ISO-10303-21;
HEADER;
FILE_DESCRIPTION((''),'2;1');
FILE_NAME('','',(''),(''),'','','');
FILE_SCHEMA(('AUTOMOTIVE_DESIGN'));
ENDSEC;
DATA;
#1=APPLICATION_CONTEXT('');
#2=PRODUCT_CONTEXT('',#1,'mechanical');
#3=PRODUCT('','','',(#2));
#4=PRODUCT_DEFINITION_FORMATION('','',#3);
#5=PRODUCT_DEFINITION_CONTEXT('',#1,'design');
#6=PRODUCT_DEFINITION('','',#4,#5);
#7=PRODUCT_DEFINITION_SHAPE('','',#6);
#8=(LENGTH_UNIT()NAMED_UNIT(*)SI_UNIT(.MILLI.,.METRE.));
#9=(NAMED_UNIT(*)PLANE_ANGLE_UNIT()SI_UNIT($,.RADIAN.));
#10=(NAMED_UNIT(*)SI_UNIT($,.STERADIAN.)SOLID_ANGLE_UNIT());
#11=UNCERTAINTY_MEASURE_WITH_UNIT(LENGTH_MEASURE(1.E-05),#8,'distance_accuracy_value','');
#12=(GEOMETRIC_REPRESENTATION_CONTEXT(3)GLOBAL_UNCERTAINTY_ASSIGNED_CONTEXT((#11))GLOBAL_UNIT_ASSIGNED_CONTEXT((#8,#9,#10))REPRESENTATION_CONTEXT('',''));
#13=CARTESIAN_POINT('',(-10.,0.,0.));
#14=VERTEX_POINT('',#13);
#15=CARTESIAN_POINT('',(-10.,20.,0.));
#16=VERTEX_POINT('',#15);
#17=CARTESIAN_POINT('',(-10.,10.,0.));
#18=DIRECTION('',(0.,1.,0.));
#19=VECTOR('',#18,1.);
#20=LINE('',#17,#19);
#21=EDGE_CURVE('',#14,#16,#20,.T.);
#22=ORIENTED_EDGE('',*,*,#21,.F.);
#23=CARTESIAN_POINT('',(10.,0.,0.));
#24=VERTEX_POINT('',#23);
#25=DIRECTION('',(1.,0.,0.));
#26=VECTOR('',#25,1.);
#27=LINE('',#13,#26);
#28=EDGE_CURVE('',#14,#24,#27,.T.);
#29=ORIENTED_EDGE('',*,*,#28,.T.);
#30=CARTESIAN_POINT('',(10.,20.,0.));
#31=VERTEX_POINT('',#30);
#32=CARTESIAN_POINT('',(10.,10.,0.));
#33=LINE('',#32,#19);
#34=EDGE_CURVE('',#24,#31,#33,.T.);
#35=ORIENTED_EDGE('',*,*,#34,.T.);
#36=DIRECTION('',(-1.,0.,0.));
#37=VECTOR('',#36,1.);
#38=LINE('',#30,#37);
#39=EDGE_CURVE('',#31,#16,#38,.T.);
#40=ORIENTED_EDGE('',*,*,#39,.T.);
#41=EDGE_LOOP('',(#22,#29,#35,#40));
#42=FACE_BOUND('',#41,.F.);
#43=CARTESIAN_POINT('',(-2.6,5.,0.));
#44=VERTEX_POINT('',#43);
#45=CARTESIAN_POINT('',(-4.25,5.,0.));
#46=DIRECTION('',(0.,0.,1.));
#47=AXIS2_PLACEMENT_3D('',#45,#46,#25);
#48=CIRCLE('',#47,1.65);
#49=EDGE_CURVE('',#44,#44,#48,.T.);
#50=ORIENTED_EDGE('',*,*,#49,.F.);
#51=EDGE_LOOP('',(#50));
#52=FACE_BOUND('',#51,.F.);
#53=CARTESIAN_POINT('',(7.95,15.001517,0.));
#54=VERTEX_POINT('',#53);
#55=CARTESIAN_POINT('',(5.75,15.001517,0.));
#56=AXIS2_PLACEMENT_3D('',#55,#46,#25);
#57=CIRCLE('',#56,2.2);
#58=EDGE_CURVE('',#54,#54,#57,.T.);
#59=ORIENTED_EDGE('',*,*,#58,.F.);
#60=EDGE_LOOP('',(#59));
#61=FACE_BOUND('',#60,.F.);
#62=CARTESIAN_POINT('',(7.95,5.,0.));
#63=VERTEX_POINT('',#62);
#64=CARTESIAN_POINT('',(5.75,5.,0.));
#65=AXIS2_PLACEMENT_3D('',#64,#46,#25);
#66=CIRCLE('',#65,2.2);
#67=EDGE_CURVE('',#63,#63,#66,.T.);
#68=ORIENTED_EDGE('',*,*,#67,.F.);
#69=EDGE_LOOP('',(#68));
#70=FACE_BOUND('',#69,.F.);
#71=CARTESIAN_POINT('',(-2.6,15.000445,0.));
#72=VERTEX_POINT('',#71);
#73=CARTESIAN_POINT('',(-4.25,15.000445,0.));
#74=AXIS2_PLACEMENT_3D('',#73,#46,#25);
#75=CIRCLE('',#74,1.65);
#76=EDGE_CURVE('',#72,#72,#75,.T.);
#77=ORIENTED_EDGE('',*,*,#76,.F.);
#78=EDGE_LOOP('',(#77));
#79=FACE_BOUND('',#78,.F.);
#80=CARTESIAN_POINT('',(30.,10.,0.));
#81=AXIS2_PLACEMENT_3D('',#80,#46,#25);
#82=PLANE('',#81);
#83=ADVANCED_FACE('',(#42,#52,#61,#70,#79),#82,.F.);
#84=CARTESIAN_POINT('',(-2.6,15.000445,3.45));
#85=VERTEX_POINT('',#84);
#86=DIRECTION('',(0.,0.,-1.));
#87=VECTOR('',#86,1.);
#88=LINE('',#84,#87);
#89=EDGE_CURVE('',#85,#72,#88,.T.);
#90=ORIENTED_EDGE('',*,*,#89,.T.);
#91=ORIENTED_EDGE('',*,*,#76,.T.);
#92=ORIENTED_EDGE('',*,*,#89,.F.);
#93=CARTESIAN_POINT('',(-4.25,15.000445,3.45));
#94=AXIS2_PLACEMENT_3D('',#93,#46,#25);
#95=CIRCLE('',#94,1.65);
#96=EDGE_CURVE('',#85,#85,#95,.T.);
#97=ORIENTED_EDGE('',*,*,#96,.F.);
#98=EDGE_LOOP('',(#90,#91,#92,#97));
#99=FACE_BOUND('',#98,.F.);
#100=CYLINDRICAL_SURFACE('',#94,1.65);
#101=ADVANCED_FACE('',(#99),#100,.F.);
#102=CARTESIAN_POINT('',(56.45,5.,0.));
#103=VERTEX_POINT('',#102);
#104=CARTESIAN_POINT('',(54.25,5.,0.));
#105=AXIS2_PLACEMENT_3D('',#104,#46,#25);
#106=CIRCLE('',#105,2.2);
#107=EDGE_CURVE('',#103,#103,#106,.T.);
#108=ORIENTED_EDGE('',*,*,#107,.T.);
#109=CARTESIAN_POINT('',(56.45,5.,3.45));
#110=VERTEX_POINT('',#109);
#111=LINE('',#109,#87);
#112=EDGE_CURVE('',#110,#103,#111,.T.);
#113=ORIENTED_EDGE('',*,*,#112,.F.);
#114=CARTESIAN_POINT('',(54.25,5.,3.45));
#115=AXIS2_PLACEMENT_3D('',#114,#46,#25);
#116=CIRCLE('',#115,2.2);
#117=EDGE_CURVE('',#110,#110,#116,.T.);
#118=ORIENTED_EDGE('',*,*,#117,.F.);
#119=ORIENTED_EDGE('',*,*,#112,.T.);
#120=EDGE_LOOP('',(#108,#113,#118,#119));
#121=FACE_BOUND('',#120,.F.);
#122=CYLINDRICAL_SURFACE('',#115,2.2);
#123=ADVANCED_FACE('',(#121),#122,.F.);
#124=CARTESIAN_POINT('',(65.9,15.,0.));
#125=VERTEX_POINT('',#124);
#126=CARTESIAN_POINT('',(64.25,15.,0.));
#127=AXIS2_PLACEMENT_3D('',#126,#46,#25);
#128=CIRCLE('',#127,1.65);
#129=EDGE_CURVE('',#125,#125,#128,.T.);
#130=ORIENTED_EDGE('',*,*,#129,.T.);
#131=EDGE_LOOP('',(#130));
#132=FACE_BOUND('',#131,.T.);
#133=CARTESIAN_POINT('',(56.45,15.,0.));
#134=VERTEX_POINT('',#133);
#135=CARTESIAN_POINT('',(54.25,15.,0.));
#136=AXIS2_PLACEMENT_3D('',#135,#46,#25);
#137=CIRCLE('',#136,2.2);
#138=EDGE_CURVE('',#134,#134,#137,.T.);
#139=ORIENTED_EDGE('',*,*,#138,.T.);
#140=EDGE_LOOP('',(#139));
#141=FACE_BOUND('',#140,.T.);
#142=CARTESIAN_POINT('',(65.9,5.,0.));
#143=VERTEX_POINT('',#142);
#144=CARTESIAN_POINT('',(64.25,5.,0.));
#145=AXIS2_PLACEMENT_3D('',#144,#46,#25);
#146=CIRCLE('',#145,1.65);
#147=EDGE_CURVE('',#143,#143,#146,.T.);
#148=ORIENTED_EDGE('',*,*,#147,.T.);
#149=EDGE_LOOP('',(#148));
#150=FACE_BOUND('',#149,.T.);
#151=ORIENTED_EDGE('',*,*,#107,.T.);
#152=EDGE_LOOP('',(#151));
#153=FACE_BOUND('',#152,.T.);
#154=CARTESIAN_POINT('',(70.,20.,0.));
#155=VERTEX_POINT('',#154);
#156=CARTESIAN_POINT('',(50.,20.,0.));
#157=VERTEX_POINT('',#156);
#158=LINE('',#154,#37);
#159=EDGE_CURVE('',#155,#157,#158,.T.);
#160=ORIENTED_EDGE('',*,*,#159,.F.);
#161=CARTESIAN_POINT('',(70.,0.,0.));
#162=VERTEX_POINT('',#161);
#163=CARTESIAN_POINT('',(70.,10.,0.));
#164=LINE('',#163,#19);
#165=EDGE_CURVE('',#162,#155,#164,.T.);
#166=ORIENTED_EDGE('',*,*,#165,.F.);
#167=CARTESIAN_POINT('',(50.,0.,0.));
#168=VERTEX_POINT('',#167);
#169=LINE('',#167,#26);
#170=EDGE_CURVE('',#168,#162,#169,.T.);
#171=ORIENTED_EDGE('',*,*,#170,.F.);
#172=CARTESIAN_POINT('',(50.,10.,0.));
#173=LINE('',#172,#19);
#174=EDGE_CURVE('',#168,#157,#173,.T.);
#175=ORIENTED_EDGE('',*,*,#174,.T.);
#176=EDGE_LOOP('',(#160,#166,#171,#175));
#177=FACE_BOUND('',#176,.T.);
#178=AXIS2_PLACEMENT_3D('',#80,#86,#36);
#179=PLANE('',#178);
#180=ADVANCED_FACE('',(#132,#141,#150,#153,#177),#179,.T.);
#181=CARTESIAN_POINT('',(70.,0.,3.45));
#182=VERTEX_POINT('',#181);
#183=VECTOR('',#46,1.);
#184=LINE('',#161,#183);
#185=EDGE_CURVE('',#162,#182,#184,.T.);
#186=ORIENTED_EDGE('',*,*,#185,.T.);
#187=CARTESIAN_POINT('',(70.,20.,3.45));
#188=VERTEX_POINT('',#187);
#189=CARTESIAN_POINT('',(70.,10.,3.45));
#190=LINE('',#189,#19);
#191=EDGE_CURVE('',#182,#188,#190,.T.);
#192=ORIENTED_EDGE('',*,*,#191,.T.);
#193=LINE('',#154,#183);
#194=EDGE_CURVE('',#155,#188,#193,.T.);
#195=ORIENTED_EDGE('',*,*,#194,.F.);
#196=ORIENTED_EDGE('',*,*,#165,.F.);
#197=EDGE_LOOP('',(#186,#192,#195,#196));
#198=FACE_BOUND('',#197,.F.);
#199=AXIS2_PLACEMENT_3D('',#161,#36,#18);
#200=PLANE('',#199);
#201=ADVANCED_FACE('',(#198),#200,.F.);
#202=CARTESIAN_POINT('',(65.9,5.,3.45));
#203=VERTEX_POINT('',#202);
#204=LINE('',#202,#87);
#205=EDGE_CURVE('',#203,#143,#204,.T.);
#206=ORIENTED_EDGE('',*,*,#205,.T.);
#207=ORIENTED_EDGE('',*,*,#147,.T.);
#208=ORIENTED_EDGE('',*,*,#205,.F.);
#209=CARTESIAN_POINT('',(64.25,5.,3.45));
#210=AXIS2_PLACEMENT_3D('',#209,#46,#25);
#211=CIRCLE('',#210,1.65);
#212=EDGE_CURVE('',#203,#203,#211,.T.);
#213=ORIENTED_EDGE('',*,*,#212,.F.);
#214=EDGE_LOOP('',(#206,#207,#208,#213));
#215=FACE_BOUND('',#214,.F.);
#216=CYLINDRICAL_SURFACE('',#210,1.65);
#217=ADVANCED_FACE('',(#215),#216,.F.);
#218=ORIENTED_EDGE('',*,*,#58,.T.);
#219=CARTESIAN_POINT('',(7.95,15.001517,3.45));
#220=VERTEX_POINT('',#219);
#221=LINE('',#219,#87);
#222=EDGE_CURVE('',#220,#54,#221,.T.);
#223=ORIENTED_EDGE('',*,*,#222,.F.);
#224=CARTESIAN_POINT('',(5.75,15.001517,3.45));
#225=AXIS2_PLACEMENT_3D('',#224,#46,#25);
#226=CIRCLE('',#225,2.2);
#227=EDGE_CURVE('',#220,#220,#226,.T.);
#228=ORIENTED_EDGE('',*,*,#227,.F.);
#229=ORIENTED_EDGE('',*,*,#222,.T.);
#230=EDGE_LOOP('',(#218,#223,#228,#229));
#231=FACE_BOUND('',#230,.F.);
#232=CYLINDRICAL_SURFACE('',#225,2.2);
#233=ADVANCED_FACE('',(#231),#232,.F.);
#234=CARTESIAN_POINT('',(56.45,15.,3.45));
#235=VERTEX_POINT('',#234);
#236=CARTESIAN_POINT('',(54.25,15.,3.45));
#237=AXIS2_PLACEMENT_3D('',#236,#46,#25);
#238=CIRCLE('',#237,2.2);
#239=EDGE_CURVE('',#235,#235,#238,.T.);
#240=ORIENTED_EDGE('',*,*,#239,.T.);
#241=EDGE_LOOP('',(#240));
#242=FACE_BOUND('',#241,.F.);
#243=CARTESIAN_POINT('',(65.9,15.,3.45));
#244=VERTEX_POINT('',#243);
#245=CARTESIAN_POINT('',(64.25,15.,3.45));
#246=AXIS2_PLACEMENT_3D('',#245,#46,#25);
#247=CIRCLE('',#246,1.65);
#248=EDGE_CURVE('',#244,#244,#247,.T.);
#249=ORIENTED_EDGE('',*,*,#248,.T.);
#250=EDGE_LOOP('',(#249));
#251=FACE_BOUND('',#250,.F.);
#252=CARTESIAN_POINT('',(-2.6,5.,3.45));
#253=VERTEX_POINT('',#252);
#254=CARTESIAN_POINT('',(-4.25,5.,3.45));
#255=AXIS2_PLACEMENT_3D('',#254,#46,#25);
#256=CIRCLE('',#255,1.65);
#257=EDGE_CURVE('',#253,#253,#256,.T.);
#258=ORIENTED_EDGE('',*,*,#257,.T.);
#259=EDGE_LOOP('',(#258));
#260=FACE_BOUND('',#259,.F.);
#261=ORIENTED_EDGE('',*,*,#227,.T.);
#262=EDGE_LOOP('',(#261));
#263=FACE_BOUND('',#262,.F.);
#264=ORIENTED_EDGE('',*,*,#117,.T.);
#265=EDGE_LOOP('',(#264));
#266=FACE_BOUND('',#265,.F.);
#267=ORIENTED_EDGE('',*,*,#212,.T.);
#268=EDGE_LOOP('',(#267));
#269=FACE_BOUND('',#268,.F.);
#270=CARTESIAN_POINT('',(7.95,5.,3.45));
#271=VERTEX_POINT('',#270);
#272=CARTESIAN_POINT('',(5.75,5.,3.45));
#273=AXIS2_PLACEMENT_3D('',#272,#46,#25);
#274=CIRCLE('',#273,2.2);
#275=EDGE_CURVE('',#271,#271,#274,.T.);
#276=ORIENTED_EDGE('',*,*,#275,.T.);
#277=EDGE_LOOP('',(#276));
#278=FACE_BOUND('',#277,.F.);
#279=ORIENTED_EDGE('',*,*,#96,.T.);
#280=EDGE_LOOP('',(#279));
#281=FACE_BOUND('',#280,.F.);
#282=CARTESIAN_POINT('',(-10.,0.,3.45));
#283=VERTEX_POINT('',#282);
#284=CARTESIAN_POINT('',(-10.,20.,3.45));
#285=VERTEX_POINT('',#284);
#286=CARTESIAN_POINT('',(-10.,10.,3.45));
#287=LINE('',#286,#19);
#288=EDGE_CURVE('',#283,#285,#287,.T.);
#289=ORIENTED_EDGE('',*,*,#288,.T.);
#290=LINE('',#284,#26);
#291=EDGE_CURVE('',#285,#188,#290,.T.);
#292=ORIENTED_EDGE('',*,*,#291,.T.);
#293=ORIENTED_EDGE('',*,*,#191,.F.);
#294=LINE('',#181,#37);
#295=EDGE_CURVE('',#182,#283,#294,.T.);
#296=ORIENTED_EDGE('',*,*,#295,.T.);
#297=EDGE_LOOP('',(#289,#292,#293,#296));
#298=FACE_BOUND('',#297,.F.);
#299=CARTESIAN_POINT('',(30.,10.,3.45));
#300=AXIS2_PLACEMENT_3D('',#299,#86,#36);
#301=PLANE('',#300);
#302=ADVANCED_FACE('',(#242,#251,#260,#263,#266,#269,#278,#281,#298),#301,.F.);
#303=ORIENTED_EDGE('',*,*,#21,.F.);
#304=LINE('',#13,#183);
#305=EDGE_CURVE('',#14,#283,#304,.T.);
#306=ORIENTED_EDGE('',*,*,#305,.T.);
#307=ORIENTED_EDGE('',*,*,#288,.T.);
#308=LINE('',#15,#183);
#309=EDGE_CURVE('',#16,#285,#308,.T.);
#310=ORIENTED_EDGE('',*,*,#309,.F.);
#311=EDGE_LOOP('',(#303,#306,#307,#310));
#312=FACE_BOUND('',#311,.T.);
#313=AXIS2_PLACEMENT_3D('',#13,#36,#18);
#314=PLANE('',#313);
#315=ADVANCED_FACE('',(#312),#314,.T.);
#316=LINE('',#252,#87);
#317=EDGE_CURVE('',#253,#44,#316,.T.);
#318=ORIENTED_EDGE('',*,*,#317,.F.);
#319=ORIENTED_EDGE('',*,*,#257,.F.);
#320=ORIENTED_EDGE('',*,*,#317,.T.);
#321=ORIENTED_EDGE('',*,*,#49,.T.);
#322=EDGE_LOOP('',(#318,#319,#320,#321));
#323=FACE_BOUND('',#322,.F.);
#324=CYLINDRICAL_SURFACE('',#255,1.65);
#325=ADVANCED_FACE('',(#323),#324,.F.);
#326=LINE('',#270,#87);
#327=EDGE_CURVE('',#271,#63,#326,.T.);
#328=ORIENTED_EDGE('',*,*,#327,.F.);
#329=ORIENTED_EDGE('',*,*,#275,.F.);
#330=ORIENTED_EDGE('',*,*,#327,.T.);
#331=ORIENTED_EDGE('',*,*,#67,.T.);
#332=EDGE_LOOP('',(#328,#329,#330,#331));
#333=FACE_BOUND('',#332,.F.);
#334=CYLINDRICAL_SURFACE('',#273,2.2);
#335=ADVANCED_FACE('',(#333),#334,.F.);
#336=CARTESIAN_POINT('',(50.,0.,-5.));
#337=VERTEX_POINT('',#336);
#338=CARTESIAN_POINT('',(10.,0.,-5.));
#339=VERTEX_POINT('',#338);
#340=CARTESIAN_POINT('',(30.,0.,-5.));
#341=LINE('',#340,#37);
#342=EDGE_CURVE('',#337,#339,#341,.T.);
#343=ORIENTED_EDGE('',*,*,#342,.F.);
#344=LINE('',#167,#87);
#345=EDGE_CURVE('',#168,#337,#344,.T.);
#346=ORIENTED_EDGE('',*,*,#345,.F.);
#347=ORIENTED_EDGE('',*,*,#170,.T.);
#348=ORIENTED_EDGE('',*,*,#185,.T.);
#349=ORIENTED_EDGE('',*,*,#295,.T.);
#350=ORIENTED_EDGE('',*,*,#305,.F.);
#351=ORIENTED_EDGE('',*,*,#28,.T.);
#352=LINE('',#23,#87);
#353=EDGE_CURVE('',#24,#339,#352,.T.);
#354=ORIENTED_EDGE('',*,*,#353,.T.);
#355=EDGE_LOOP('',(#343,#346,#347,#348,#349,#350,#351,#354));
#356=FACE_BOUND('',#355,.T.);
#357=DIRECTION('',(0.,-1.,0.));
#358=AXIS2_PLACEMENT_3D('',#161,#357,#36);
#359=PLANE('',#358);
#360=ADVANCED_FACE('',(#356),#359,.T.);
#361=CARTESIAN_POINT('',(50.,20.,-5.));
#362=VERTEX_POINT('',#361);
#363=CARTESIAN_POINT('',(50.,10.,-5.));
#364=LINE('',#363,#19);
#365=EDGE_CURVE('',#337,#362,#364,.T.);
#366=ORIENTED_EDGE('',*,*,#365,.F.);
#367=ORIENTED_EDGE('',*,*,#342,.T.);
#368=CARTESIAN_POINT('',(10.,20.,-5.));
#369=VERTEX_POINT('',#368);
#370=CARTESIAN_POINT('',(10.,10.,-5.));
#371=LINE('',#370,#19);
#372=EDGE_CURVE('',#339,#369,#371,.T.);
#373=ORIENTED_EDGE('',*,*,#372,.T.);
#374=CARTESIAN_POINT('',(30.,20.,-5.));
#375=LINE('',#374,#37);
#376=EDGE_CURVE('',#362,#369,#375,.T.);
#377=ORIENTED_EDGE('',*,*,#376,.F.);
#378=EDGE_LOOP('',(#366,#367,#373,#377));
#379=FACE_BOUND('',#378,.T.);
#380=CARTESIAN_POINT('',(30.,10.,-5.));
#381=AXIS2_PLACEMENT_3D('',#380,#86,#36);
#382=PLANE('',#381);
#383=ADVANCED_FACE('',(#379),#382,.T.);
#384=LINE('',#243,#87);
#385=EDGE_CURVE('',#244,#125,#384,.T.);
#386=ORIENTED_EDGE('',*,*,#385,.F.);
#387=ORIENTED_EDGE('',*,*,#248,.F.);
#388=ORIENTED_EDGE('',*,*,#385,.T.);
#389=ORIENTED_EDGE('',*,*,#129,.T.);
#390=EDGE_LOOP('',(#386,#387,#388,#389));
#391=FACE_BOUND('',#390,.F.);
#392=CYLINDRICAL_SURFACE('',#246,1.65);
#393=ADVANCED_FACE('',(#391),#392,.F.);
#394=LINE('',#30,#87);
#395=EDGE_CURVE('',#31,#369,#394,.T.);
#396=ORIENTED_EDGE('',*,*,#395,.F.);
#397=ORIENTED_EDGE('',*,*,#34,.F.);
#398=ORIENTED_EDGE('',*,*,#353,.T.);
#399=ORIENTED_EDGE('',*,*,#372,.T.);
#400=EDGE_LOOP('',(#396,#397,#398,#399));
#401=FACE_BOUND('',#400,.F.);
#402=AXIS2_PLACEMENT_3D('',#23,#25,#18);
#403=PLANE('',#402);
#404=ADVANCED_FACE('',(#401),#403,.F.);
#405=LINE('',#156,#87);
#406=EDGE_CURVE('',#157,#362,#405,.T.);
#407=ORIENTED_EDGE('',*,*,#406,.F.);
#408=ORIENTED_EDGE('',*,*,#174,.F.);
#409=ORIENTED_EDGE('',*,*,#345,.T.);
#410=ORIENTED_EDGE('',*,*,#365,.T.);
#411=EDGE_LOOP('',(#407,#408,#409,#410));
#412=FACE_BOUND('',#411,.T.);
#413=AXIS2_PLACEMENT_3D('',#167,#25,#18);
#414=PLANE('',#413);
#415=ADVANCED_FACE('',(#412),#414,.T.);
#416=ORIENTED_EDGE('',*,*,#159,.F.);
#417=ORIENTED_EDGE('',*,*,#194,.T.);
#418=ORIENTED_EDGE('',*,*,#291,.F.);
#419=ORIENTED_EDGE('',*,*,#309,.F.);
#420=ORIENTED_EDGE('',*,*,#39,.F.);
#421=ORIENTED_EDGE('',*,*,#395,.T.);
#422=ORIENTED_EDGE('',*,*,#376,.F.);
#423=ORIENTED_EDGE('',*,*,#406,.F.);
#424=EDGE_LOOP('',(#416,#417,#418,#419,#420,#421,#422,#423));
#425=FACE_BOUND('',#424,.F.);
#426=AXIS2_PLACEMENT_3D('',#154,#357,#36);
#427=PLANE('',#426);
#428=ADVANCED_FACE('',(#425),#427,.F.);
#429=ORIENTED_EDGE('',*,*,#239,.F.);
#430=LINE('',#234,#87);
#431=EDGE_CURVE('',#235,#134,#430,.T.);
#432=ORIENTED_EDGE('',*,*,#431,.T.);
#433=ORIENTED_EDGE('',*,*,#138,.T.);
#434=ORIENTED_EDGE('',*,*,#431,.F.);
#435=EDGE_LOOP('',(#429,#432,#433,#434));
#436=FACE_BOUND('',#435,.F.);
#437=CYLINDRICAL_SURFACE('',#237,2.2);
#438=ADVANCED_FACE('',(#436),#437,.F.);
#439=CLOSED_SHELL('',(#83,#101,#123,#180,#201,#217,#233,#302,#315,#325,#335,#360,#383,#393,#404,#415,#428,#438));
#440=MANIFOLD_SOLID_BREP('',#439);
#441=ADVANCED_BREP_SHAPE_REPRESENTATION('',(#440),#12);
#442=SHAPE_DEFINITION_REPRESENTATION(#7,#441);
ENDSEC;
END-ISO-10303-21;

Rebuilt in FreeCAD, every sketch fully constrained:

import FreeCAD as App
import Part
import Sketcher

V = App.Vector
Q = App.Units.Quantity

doc = App.newDocument("Part")
body = doc.addObject("PartDesign::Body", "Body")

sketch1 = body.newObject("Sketcher::SketchObject", "Sketch")
sketch1.AttachmentSupport = (doc.getObject("XY_Plane"), [""])
sketch1.MapMode = "FlatFace"
sketch1.addGeometry([
    Part.LineSegment(V(0, 20, 0), V(0, 0, 0)),
    Part.LineSegment(V(0, 0, 0), V(60, 0, 0)),
    Part.LineSegment(V(60, 0, 0), V(60, 20, 0)),
    Part.LineSegment(V(60, 20, 0), V(0, 20, 0)),
], False)
sketch1.addConstraint([
    Sketcher.Constraint("Coincident", 0, 2, 1, 1),
    Sketcher.Constraint("Coincident", 1, 2, 2, 1),
    Sketcher.Constraint("Coincident", 2, 2, 3, 1),
    Sketcher.Constraint("Coincident", 3, 2, 0, 1),
    Sketcher.Constraint("Vertical", 0),
    Sketcher.Constraint("Horizontal", 1),
    Sketcher.Constraint("Vertical", 2),
    Sketcher.Constraint("Horizontal", 3),
    Sketcher.Constraint("Coincident", 0, 2, -1, 1),
    Sketcher.Constraint("DistanceX", 1, 1, 1, 2, Q("60 mm")),
    Sketcher.Constraint("DistanceY", 0, 2, 0, 1, Q("20 mm")),
])
pad1 = body.newObject("PartDesign::Pad", "Pad")
pad1.Profile = sketch1
pad1.Length = 3.45

sketch2 = body.newObject("Sketcher::SketchObject", "Sketch001")
sketch2.AttachmentSupport = (doc.getObject("XY_Plane"), [""])
sketch2.MapMode = "FlatFace"
sketch2.addGeometry([
    Part.LineSegment(V(50, 20, 0), V(50, 0, 0)),
    Part.LineSegment(V(50, 0, 0), V(10, 0, 0)),
    Part.LineSegment(V(10, 0, 0), V(10, 20, 0)),
    Part.LineSegment(V(10, 20, 0), V(50, 20, 0)),
], False)
sketch2.addConstraint([
    Sketcher.Constraint("Coincident", 0, 2, 1, 1),
    Sketcher.Constraint("Coincident", 1, 2, 2, 1),
    Sketcher.Constraint("Coincident", 2, 2, 3, 1),
    Sketcher.Constraint("Coincident", 3, 2, 0, 1),
    Sketcher.Constraint("Vertical", 0),
    Sketcher.Constraint("Horizontal", 1),
    Sketcher.Constraint("Vertical", 2),
    Sketcher.Constraint("Horizontal", 3),
    Sketcher.Constraint("PointOnObject", 0, 2, -1),
    Sketcher.Constraint("DistanceX", 1, 2, 1, 1, Q("40 mm")),
    Sketcher.Constraint("DistanceY", 0, 2, 0, 1, Q("20 mm")),
    Sketcher.Constraint("DistanceX", -1, 1, 0, 2, Q("50 mm")),
])
pad2 = body.newObject("PartDesign::Pad", "Pad001")
pad2.Profile = sketch2
pad2.Length = 5
pad2.Reversed = True

sketch3 = body.newObject("Sketcher::SketchObject", "Sketch002")
sketch3.AttachmentSupport = (doc.getObject("XY_Plane"), [""])
sketch3.MapMode = "FlatFace"
sketch3.addGeometry([
    Part.LineSegment(V(70, 20, 0), V(70, 0, 0)),
    Part.LineSegment(V(70, 0, 0), V(-10, 0, 0)),
    Part.LineSegment(V(-10, 0, 0), V(-10, 20, 0)),
    Part.LineSegment(V(-10, 20, 0), V(70, 20, 0)),
], False)
sketch3.addConstraint([
    Sketcher.Constraint("Coincident", 0, 2, 1, 1),
    Sketcher.Constraint("Coincident", 1, 2, 2, 1),
    Sketcher.Constraint("Coincident", 2, 2, 3, 1),
    Sketcher.Constraint("Coincident", 3, 2, 0, 1),
    Sketcher.Constraint("Vertical", 0),
    Sketcher.Constraint("Horizontal", 1),
    Sketcher.Constraint("Vertical", 2),
    Sketcher.Constraint("Horizontal", 3),
    Sketcher.Constraint("PointOnObject", 0, 2, -1),
    Sketcher.Constraint("DistanceX", 1, 2, 1, 1, Q("80 mm")),
    Sketcher.Constraint("DistanceY", 0, 2, 0, 1, Q("20 mm")),
    Sketcher.Constraint("DistanceX", -1, 1, 0, 2, Q("70 mm")),
])
pad3 = body.newObject("PartDesign::Pad", "Pad002")
pad3.Profile = sketch3
pad3.Length = 3.45

sketch4 = body.newObject("Sketcher::SketchObject", "Sketch003")
sketch4.AttachmentSupport = (doc.getObject("XY_Plane"), [""])
sketch4.MapMode = "FlatFace"
sketch4.AttachmentOffset = App.Placement(V(0, 0, 3.45), App.Rotation())
sketch4.addGeometry([
    Part.Circle(V(5.75, 15.001517, 0), V(0, 0, 1), 2.2),
    Part.Circle(V(54.25, 15, 0), V(0, 0, 1), 2.2),
    Part.Circle(V(54.25, 5, 0), V(0, 0, 1), 2.2),
    Part.Circle(V(5.75, 5, 0), V(0, 0, 1), 2.2),
    Part.Circle(V(-4.25, 15.000445, 0), V(0, 0, 1), 1.65),
    Part.Circle(V(-4.25, 5, 0), V(0, 0, 1), 1.65),
    Part.Circle(V(64.25, 5, 0), V(0, 0, 1), 1.65),
    Part.Circle(V(64.25, 15, 0), V(0, 0, 1), 1.65),
], False)
sketch4.addConstraint([
    Sketcher.Constraint("Equal", 0, 1),
    Sketcher.Constraint("Equal", 1, 2),
    Sketcher.Constraint("Equal", 2, 3),
    Sketcher.Constraint("Equal", 4, 5),
    Sketcher.Constraint("Equal", 5, 6),
    Sketcher.Constraint("Equal", 6, 7),
    Sketcher.Constraint("Horizontal", 2, 3, 3, 3),
    Sketcher.Constraint("Horizontal", 3, 3, 5, 3),
    Sketcher.Constraint("Horizontal", 5, 3, 6, 3),
    Sketcher.Constraint("Horizontal", 1, 3, 7, 3),
    Sketcher.Constraint("Vertical", 1, 3, 2, 3),
    Sketcher.Constraint("Vertical", 0, 3, 3, 3),
    Sketcher.Constraint("Vertical", 4, 3, 5, 3),
    Sketcher.Constraint("Vertical", 6, 3, 7, 3),
    Sketcher.Constraint("Diameter", 0, Q("4.4 mm")),
    Sketcher.Constraint("Diameter", 4, Q("3.3 mm")),
    Sketcher.Constraint("DistanceY", -1, 1, 1, 3, Q("15 mm")),
    Sketcher.Constraint("DistanceY", -1, 1, 2, 3, Q("5 mm")),
    Sketcher.Constraint("DistanceX", 4, 3, 0, 3, Q("10 mm")),
    Sketcher.Constraint("DistanceX", 2, 3, 6, 3, Q("10 mm")),
    Sketcher.Constraint("DistanceX", 0, 3, 1, 3, Q("48.5 mm")),
    Sketcher.Constraint("DistanceX", -1, 1, 0, 3, Q("5.75 mm")),
    Sketcher.Constraint("DistanceY", 4, 3, 0, 3, Q("0.001072 mm")),
    Sketcher.Constraint("DistanceY", -1, 1, 0, 3, Q("15.001517 mm")),
])
pocket1 = body.newObject("PartDesign::Pocket", "Pocket")
pocket1.Profile = sketch4
pocket1.Length = 3.45

doc.recompute()
